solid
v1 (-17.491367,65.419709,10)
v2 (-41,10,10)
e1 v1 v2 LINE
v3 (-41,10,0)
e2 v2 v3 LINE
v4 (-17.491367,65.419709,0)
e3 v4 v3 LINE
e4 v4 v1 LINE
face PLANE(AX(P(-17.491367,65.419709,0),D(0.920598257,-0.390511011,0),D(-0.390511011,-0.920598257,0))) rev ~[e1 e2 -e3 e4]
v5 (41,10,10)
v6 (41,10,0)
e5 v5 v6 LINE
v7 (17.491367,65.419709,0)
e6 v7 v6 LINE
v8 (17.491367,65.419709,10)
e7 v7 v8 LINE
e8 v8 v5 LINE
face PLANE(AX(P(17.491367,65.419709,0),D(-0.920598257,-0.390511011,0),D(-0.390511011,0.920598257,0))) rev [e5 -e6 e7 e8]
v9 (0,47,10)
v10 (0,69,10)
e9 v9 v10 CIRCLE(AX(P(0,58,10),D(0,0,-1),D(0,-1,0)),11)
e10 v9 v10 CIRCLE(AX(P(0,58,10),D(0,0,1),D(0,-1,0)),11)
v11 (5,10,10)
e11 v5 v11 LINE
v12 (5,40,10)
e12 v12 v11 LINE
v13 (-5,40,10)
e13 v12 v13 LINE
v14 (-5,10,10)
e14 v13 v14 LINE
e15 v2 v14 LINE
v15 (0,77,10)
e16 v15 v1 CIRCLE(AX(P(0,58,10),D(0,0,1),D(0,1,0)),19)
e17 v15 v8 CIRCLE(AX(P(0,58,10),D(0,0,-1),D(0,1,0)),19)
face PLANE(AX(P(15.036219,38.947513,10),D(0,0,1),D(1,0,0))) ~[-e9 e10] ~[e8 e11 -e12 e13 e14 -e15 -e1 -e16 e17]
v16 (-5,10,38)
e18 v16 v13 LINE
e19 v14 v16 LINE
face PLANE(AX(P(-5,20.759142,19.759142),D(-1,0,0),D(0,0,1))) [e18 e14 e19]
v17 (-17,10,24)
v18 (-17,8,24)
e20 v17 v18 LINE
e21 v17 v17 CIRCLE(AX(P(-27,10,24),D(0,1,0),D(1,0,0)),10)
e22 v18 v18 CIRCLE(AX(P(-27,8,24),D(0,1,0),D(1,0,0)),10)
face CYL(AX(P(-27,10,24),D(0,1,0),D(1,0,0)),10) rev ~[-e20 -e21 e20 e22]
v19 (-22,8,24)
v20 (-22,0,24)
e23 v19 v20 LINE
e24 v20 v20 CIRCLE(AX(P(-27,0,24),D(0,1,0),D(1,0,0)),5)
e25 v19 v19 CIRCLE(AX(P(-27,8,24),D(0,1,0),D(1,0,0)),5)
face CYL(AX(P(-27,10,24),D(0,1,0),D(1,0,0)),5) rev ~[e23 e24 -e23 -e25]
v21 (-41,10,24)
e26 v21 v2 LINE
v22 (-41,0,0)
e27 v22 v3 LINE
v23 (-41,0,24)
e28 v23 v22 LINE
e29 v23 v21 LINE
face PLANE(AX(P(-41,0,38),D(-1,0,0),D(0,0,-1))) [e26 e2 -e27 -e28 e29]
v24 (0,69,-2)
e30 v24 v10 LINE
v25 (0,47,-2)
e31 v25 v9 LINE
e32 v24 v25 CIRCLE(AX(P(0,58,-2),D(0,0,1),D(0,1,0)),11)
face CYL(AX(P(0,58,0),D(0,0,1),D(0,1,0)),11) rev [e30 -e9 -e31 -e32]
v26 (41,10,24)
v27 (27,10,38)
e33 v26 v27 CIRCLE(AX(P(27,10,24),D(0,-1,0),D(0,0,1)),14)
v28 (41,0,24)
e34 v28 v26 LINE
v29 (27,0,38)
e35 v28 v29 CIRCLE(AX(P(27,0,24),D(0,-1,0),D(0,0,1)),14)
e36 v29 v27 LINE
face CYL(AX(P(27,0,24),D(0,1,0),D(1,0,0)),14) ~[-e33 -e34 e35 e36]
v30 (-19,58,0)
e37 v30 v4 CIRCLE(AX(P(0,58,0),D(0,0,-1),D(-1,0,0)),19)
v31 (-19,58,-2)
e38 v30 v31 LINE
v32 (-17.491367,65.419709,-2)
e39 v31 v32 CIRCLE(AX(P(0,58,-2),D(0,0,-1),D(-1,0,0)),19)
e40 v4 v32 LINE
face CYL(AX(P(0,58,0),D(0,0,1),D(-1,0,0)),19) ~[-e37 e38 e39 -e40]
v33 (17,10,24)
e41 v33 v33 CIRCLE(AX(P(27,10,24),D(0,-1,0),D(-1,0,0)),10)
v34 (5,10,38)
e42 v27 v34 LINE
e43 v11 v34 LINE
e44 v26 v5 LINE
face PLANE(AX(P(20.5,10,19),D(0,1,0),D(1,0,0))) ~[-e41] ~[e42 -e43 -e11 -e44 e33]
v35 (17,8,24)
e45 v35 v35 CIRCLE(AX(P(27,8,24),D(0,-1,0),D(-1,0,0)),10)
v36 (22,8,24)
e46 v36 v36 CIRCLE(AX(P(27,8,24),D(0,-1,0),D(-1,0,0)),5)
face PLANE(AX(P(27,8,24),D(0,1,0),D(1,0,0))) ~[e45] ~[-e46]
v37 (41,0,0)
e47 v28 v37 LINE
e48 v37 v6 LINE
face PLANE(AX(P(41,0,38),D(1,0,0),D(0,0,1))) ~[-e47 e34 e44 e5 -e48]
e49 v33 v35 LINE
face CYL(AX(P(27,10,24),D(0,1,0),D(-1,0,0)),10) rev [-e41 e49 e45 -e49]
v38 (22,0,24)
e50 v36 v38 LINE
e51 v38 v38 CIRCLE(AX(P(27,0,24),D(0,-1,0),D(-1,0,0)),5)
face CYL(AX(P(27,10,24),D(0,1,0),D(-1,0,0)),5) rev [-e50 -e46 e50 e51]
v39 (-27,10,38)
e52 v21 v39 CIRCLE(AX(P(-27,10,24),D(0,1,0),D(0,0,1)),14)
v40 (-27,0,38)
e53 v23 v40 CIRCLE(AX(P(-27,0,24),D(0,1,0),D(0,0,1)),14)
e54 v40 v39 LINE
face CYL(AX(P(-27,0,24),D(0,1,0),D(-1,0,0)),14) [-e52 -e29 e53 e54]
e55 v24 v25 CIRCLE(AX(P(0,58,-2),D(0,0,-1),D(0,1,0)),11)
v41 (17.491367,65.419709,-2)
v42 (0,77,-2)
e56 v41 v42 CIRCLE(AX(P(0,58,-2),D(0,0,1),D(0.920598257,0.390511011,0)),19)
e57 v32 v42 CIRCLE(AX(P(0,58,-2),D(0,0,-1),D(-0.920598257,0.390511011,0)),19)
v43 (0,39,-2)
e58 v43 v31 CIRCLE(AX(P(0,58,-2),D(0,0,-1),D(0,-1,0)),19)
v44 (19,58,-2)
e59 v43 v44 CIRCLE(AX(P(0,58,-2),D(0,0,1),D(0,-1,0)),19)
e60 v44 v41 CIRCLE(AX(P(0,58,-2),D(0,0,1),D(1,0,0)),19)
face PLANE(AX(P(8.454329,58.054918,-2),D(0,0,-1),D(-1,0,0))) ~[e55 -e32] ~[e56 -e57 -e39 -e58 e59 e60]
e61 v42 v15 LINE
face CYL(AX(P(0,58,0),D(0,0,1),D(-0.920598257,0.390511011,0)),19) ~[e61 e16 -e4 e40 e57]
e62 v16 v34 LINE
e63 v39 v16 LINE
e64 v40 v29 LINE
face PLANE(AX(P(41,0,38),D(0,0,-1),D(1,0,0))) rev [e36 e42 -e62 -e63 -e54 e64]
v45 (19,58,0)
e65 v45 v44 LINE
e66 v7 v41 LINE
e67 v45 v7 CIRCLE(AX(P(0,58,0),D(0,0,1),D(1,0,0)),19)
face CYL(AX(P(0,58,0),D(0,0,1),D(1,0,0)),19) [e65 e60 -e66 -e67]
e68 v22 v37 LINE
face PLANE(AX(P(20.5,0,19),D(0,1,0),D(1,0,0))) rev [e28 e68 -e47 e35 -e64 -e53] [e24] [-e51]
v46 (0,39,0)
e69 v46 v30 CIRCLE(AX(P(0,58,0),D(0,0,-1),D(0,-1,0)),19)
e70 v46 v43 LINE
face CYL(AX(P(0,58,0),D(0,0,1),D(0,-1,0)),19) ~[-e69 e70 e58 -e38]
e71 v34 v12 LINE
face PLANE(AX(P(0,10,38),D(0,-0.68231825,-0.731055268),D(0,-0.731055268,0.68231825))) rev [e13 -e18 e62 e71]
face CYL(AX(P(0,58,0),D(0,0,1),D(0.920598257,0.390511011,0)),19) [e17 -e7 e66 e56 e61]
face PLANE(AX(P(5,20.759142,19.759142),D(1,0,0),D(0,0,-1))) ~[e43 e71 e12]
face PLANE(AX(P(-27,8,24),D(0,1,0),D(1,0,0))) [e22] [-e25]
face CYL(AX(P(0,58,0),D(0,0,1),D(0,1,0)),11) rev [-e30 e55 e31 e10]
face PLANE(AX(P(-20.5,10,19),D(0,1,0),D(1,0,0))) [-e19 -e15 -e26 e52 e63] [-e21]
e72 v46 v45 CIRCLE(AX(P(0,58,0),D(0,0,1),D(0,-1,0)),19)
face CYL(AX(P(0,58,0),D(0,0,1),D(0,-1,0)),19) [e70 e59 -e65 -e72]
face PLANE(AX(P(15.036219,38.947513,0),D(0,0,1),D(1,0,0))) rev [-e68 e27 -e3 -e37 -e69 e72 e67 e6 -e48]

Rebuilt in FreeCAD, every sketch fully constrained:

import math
import FreeCAD as App
import Part
import Sketcher
from FreeCAD import Vector


def edges_at(feature, points):
    """Names of the edges that pass closest to the given points."""
    edges = feature.Shape.Edges
    near = lambda p: min(range(len(edges)), key=lambda i: edges[i].distToShape(Part.Vertex(*p))[0])
    return sorted({f"Edge{near(p) + 1}" for p in points})

doc = App.newDocument("Part")
body = doc.addObject("PartDesign::Body", "Body")

sketch1 = body.newObject("Sketcher::SketchObject", "Sketch")
sketch1.AttachmentSupport = (doc.getObject("XZ_Plane"), [""])
sketch1.MapMode = "FlatFace"
sketch1.addGeometry([
    Part.LineSegment(Vector(-41, 0, 0), Vector(-41, 38, 0)),
    Part.LineSegment(Vector(-41, 38, 0), Vector(0, 38, 0)),
    Part.LineSegment(Vector(0, 38, 0), Vector(0, 0, 0)),
    Part.LineSegment(Vector(0, 0, 0), Vector(-41, 0, 0)),
], False)
sketch1.addConstraint([
    Sketcher.Constraint("Coincident", 0, 2, 1, 1),
    Sketcher.Constraint("Coincident", 1, 2, 2, 1),
    Sketcher.Constraint("Coincident", 2, 2, 3, 1),
    Sketcher.Constraint("Coincident", 3, 2, 0, 1),
    Sketcher.Constraint("Vertical", 0),
    Sketcher.Constraint("Horizontal", 1),
    Sketcher.Constraint("Vertical", 2),
    Sketcher.Constraint("Horizontal", 3),
    Sketcher.Constraint("Coincident", 2, 2, -1, 1),
    Sketcher.Constraint("DistanceX", 1, 1, 1, 2, 41.0),
    Sketcher.Constraint("DistanceY", 0, 1, 0, 2, 38.0),
])
pad1 = body.newObject("PartDesign::Pad", "Pad")
pad1.Profile = sketch1
pad1.Length = 10
pad1.Reversed = True

sketch2 = body.newObject("Sketcher::SketchObject", "Sketch001")
sketch2.AttachmentSupport = (doc.getObject("XZ_Plane"), [""])
sketch2.MapMode = "FlatFace"
sketch2.AttachmentOffset = App.Placement(Vector(0, 0, -10), App.Rotation())
sketch2.addGeometry([
    Part.Circle(Vector(-27, 24, 0), Vector(0, 0, 1), 10),
    Part.Circle(Vector(-27, 24, 0), Vector(0, 0, 1), 5),
], False)
sketch2.addConstraint([
    Sketcher.Constraint("Coincident", 1, 3, 0, 3),
    Sketcher.Constraint("Diameter", 0, 20.0),
    Sketcher.Constraint("Diameter", 1, 10.0),
    Sketcher.Constraint("DistanceX", 0, 3, -1, 1, 27.0),
    Sketcher.Constraint("DistanceY", -1, 1, 0, 3, 24.0),
])
pocket1 = body.newObject("PartDesign::Pocket", "Pocket")
pocket1.Profile = sketch2
pocket1.Length = 2
pocket1.Reversed = True

sketch3 = body.newObject("Sketcher::SketchObject", "Sketch002")
sketch3.AttachmentSupport = (doc.getObject("XZ_Plane"), [""])
sketch3.MapMode = "FlatFace"
sketch3.AttachmentOffset = App.Placement(Vector(0, 0, -10), App.Rotation())
sketch3.addGeometry(Part.Circle(Vector(-27, 24, 0), Vector(0, 0, 1), 5), False)
sketch3.addConstraint([
    Sketcher.Constraint("Diameter", 0, 10.0),
    Sketcher.Constraint("DistanceX", 0, 3, -1, 1, 27.0),
    Sketcher.Constraint("DistanceY", -1, 1, 0, 3, 24.0),
])
pocket2 = body.newObject("PartDesign::Pocket", "Pocket001")
pocket2.Profile = sketch3
pocket2.Type = "UpToFirst"
pocket2.Reversed = True
doc.recompute()

fillet = body.newObject("PartDesign::Fillet", "Fillet")
fillet.Base = (pocket2, edges_at(pocket2, [(-41, 5, 38)]))
fillet.Radius = 14

sketch4 = body.newObject("Sketcher::SketchObject", "Sketch003")
sketch4.AttachmentSupport = (doc.getObject("XY_Plane"), [""])
sketch4.MapMode = "FlatFace"
sketch4.addGeometry([
    Part.ArcOfCircle(Part.Circle(Vector(0, 58, 0), Vector(0, 0, 1), 19), math.radians(90), math.radians(157.0137)),
    Part.LineSegment(Vector(-17.491367, 65.419709, 0), Vector(-41, 10, 0)),
    Part.LineSegment(Vector(-41, 10, 0), Vector(0, 10, 0)),
    Part.LineSegment(Vector(0, 10, 0), Vector(0, 47, 0)),
    Part.ArcOfCircle(Part.Circle(Vector(0, 58, 0), Vector(0, 0, 1), 11), math.radians(90), math.radians(270)),
    Part.LineSegment(Vector(0, 69, 0), Vector(0, 77, 0)),
], False)
sketch4.addConstraint([
    Sketcher.Constraint("Tangent", 0, 2, 1, 1),
    Sketcher.Constraint("Coincident", 1, 2, 2, 1),
    Sketcher.Constraint("Coincident", 2, 2, 3, 1),
    Sketcher.Constraint("Coincident", 3, 2, 4, 2),
    Sketcher.Constraint("Coincident", 4, 1, 5, 1),
    Sketcher.Constraint("Coincident", 5, 2, 0, 1),
    Sketcher.Constraint("Horizontal", 2),
    Sketcher.Constraint("Vertical", 3),
    Sketcher.Constraint("Vertical", 5),
    Sketcher.Constraint("Coincident", 4, 3, 0, 3),
    Sketcher.Constraint("PointOnObject", 0, 3, -2),
    Sketcher.Constraint("PointOnObject", 2, 2, -2),
    Sketcher.Constraint("PointOnObject", 4, 1, -2),
    Sketcher.Constraint("Radius", 0, 19.0),
    Sketcher.Constraint("Radius", 4, 11.0),
    Sketcher.Constraint("DistanceX", 2, 1, 2, 2, 41.0),
    Sketcher.Constraint("DistanceY", 3, 1, 3, 2, 37.0),
    Sketcher.Constraint("DistanceY", -1, 1, 0, 3, 58.0),
])
pad2 = body.newObject("PartDesign::Pad", "Pad001")
pad2.Profile = sketch4
pad2.Length = 10

sketch5 = body.newObject("Sketcher::SketchObject", "Sketch004")
sketch5.AttachmentSupport = (doc.getObject("XY_Plane"), [""])
sketch5.MapMode = "FlatFace"
sketch5.addGeometry([
    Part.LineSegment(Vector(0, 47, 0), Vector(0, 39, 0)),
    Part.ArcOfCircle(Part.Circle(Vector(0, 58, 0), Vector(0, 0, 1), 19), math.radians(180), math.radians(270)),
    Part.ArcOfCircle(Part.Circle(Vector(0, 58, 0), Vector(0, 0, 1), 19), math.radians(157.0137), math.radians(180)),
    Part.ArcOfCircle(Part.Circle(Vector(0, 58, 0), Vector(0, 0, 1), 19), math.radians(90), math.radians(157.0137)),
    Part.LineSegment(Vector(0, 77, 0), Vector(0, 69, 0)),
    Part.ArcOfCircle(Part.Circle(Vector(0, 58, 0), Vector(0, 0, 1), 11), math.radians(90), math.radians(270)),
], False)
sketch5.addConstraint([
    Sketcher.Constraint("Coincident", 0, 2, 1, 2),
    Sketcher.Constraint("Tangent", 1, 1, 2, 2),
    Sketcher.Constraint("Tangent", 2, 1, 3, 2),
    Sketcher.Constraint("Coincident", 3, 1, 4, 1),
    Sketcher.Constraint("Coincident", 4, 2, 5, 1),
    Sketcher.Constraint("Coincident", 5, 2, 0, 1),
    Sketcher.Constraint("Vertical", 0),
    Sketcher.Constraint("Vertical", 4),
    Sketcher.Constraint("Coincident", 3, 3, 1, 3),
    Sketcher.Constraint("Coincident", 5, 3, 1, 3),
    Sketcher.Constraint("PointOnObject", 1, 3, -2),
    Sketcher.Constraint("PointOnObject", 0, 2, -2),
    Sketcher.Constraint("PointOnObject", 3, 1, -2),
    Sketcher.Constraint("Horizontal", 5, 3, 1, 1),
    Sketcher.Constraint("Radius", 1, 19.0),
    Sketcher.Constraint("Radius", 5, 11.0),
    Sketcher.Constraint("DistanceY", -1, 1, 1, 3, 58.0),
    Sketcher.Constraint("DistanceY", -1, 1, 2, 1, 65.419709),
])
pad3 = body.newObject("PartDesign::Pad", "Pad002")
pad3.Profile = sketch5
pad3.Length = 2
pad3.Reversed = True

sketch6 = body.newObject("Sketcher::SketchObject", "Sketch005")
sketch6.AttachmentSupport = (doc.getObject("YZ_Plane"), [""])
sketch6.MapMode = "FlatFace"
sketch6.addGeometry([
    Part.LineSegment(Vector(40, 10, 0), Vector(10, 38, 0)),
    Part.LineSegment(Vector(10, 38, 0), Vector(10, 10, 0)),
    Part.LineSegment(Vector(10, 10, 0), Vector(40, 10, 0)),
], False)
sketch6.addConstraint([
    Sketcher.Constraint("Coincident", 0, 2, 1, 1),
    Sketcher.Constraint("Coincident", 1, 2, 2, 1),
    Sketcher.Constraint("Coincident", 2, 2, 0, 1),
    Sketcher.Constraint("Vertical", 1),
    Sketcher.Constraint("Horizontal", 2),
    Sketcher.Constraint("DistanceX", 2, 1, 2, 2, 30.0),
    Sketcher.Constraint("DistanceY", 1, 2, 1, 1, 28.0),
    Sketcher.Constraint("DistanceX", -1, 1, 0, 2, 10.0),
    Sketcher.Constraint("DistanceY", -1, 1, 0, 2, 38.0),
])
pad4 = body.newObject("PartDesign::Pad", "Pad003")
pad4.Profile = sketch6
pad4.Length = 5
pad4.Reversed = True
body2 = doc.addObject("PartDesign::Body", "Body001")
doc.recompute()

body2.BaseFeature = body
doc.recompute()

mirroring = doc.addObject("Part::Mirroring", "Mirroring")
mirroring.Source = body
mirroring.Base = Vector(0, 10, 0)
mirroring.Normal = Vector(-1, 0, 0)
body3 = doc.addObject("PartDesign::Body", "Body002")
body3.BaseFeature = mirroring
boolean = body2.newObject("PartDesign::Boolean", "Boolean")
boolean.Type = "Fuse"
boolean.addObjects([body3])
doc.recompute()
mirroring.Visibility = False

doc.recompute()
